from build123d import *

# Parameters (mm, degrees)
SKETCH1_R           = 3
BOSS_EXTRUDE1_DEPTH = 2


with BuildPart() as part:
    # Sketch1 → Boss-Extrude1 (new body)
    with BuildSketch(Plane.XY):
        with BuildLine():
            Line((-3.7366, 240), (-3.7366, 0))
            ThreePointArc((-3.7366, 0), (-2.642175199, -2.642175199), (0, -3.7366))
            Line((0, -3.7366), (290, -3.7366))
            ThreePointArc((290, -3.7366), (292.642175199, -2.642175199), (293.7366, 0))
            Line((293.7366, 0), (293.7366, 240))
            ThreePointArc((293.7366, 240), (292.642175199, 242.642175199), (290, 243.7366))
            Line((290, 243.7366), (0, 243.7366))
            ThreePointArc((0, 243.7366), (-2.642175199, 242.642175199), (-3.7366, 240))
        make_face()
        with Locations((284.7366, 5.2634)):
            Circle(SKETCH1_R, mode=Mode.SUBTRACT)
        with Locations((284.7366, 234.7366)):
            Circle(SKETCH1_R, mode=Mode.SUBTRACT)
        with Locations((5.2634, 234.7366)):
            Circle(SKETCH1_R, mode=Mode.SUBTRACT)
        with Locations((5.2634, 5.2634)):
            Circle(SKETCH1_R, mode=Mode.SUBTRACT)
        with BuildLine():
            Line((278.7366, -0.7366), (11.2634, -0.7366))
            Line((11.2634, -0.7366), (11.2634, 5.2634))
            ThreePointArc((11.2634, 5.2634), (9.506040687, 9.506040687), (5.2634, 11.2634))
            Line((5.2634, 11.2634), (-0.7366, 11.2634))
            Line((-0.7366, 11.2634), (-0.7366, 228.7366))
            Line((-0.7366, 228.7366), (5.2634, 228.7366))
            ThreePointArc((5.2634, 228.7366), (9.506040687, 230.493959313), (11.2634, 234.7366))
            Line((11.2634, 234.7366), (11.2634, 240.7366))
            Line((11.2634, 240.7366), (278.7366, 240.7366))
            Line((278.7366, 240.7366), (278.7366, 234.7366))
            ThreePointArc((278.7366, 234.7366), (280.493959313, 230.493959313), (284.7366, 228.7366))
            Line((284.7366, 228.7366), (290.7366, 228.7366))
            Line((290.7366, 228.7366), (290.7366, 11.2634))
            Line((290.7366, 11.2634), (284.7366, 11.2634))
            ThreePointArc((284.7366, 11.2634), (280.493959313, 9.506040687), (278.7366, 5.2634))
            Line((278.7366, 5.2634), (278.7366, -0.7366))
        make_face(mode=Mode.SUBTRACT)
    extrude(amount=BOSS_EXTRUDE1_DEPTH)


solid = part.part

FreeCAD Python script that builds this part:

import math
import FreeCAD as App
import Part
import Sketcher

V = App.Vector

doc = App.newDocument("Part")
body = doc.addObject("PartDesign::Body", "Body")

# Sketch on XY plane
sketch1 = doc.addObject("Sketcher::SketchObject", "Sketch")
body.addObject(sketch1)
sketch1.AttachmentSupport = (doc.XY_Plane, [""])
sketch1.MapMode = "FlatFace"
sketch1.addGeometry([
    Part.LineSegment(V(-3.7, 240, 0), V(-3.7, 0, 0)),  # 0
    Part.ArcOfCircle(Part.Circle(V(0, 0, 0), V(0, 0, 1), 3.7), math.radians(180), math.radians(270)),  # 1
    Part.LineSegment(V(0, -3.7, 0), V(290, -3.7, 0)),  # 2
    Part.ArcOfCircle(Part.Circle(V(290, 0, 0), V(0, 0, 1), 3.7), math.radians(-90), math.radians(0)),  # 3
    Part.LineSegment(V(293.7, 0, 0), V(293.7, 240, 0)),  # 4
    Part.ArcOfCircle(Part.Circle(V(290, 240, 0), V(0, 0, 1), 3.7), math.radians(0), math.radians(90)),  # 5
    Part.LineSegment(V(290, 243.7, 0), V(0, 243.7, 0)),  # 6
    Part.ArcOfCircle(Part.Circle(V(0, 240, 0), V(0, 0, 1), 3.7), math.radians(90), math.radians(180)),  # 7
    Part.Circle(V(5.3, 5.3, 0), V(0, 0, 1), 3),  # 8
    Part.Circle(V(284.7, 5.3, 0), V(0, 0, 1), 3),  # 9
    Part.LineSegment(V(278.7, 5.3, 0), V(278.7, -0.7, 0)),  # 10
    Part.LineSegment(V(278.7, -0.7, 0), V(11.3, -0.7, 0)),  # 11
    Part.LineSegment(V(11.3, -0.7, 0), V(11.3, 5.3, 0)),  # 12
    Part.ArcOfCircle(Part.Circle(V(5.3, 5.3, 0), V(0, 0, 1), 6), math.radians(0), math.radians(90)),  # 13
    Part.LineSegment(V(5.3, 11.3, 0), V(-0.7, 11.3, 0)),  # 14
    Part.LineSegment(V(-0.7, 11.3, 0), V(-0.7, 228.7, 0)),  # 15
    Part.LineSegment(V(-0.7, 228.7, 0), V(5.3, 228.7, 0)),  # 16
    Part.ArcOfCircle(Part.Circle(V(5.3, 234.7, 0), V(0, 0, 1), 6), math.radians(-90), math.radians(0)),  # 17
    Part.LineSegment(V(11.3, 234.7, 0), V(11.3, 240.7, 0)),  # 18
    Part.LineSegment(V(11.3, 240.7, 0), V(278.7, 240.7, 0)),  # 19
    Part.LineSegment(V(278.7, 240.7, 0), V(278.7, 234.7, 0)),  # 20
    Part.ArcOfCircle(Part.Circle(V(284.7, 234.7, 0), V(0, 0, 1), 6), math.radians(180), math.radians(270)),  # 21
    Part.LineSegment(V(284.7, 228.7, 0), V(290.7, 228.7, 0)),  # 22
    Part.LineSegment(V(290.7, 228.7, 0), V(290.7, 11.3, 0)),  # 23
    Part.LineSegment(V(290.7, 11.3, 0), V(284.7, 11.3, 0)),  # 24
    Part.ArcOfCircle(Part.Circle(V(284.7, 5.3, 0), V(0, 0, 1), 6), math.radians(90), math.radians(180)),  # 25
    Part.Circle(V(5.3, 234.7, 0), V(0, 0, 1), 3),  # 26
    Part.Circle(V(284.7, 234.7, 0), V(0, 0, 1), 3),  # 27
], False)
sketch1.addConstraint([
    Sketcher.Constraint("Tangent", 0, 2, 1, 1),
    Sketcher.Constraint("Tangent", 1, 2, 2, 1),
    Sketcher.Constraint("Tangent", 2, 2, 3, 1),
    Sketcher.Constraint("Tangent", 3, 2, 4, 1),
    Sketcher.Constraint("Tangent", 4, 2, 5, 1),
    Sketcher.Constraint("Tangent", 5, 2, 6, 1),
    Sketcher.Constraint("Tangent", 6, 2, 7, 1),
    Sketcher.Constraint("Tangent", 7, 2, 0, 1),
    Sketcher.Constraint("Coincident", 10, 2, 11, 1),
    Sketcher.Constraint("Coincident", 11, 2, 12, 1),
    Sketcher.Constraint("Tangent", 12, 2, 13, 1),
    Sketcher.Constraint("Tangent", 13, 2, 14, 1),
    Sketcher.Constraint("Coincident", 14, 2, 15, 1),
    Sketcher.Constraint("Coincident", 15, 2, 16, 1),
    Sketcher.Constraint("Tangent", 16, 2, 17, 1),
    Sketcher.Constraint("Tangent", 17, 2, 18, 1),
    Sketcher.Constraint("Coincident", 18, 2, 19, 1),
    Sketcher.Constraint("Coincident", 19, 2, 20, 1),
    Sketcher.Constraint("Tangent", 20, 2, 21, 1),
    Sketcher.Constraint("Tangent", 21, 2, 22, 1),
    Sketcher.Constraint("Coincident", 22, 2, 23, 1),
    Sketcher.Constraint("Coincident", 23, 2, 24, 1),
    Sketcher.Constraint("Tangent", 24, 2, 25, 1),
    Sketcher.Constraint("Tangent", 25, 2, 10, 1),
    Sketcher.Constraint("Vertical", 0),
    Sketcher.Constraint("Horizontal", 2),
    Sketcher.Constraint("Vertical", 4),
    Sketcher.Constraint("Horizontal", 6),
    Sketcher.Constraint("Vertical", 10),
    Sketcher.Constraint("Horizontal", 11),
    Sketcher.Constraint("Vertical", 12),
    Sketcher.Constraint("Horizontal", 14),
    Sketcher.Constraint("Vertical", 15),
    Sketcher.Constraint("Horizontal", 16),
    Sketcher.Constraint("Vertical", 18),
    Sketcher.Constraint("Horizontal", 19),
    Sketcher.Constraint("Vertical", 20),
    Sketcher.Constraint("Horizontal", 22),
    Sketcher.Constraint("Vertical", 23),
    Sketcher.Constraint("Horizontal", 24),
    Sketcher.Constraint("Coincident", 1, 3, -1, 1),
    Sketcher.Constraint("Coincident", 13, 3, 8, 3),
    Sketcher.Constraint("Coincident", 25, 3, 9, 3),
    Sketcher.Constraint("Coincident", 26, 3, 17, 3),
    Sketcher.Constraint("Coincident", 27, 3, 21, 3),
    Sketcher.Constraint("Equal", 1, 3),
    Sketcher.Constraint("Equal", 3, 5),
    Sketcher.Constraint("Equal", 5, 7),
    Sketcher.Constraint("Equal", 8, 9),
    Sketcher.Constraint("Equal", 13, 17),
    Sketcher.Constraint("Equal", 17, 21),
    Sketcher.Constraint("Equal", 21, 25),
    Sketcher.Constraint("Equal", 9, 26),
    Sketcher.Constraint("Equal", 26, 27),
    Sketcher.Constraint("Horizontal", 8, 3, 9, 3),
    Sketcher.Constraint("Horizontal", 17, 3, 21, 3),
    Sketcher.Constraint("Vertical", 13, 3, 17, 3),
    Sketcher.Constraint("Vertical", 9, 3, 21, 3),
    Sketcher.Constraint("Equal", 16, 22),
    Sketcher.Constraint("Equal", 24, 10),
    Sketcher.Constraint("Equal", 12, 18),
    Sketcher.Constraint("Diameter", 8, 6.0),
    Sketcher.Constraint("Radius", 13, 6.0),
    Sketcher.Constraint("DistanceX", 2, 1, 2, 2, 290.0),
    Sketcher.Constraint("DistanceX", 14, 2, 14, 1, 6.0),
    Sketcher.Constraint("DistanceY", 0, 2, 0, 1, 240.0),
    Sketcher.Constraint("DistanceX", 0, 2, 8, 3, 9.0),
    Sketcher.Constraint("DistanceY", 1, 2, 8, 3, 9.0),
    Sketcher.Constraint("DistanceX", 9, 3, 3, 2, 9.0),
    Sketcher.Constraint("DistanceY", 21, 3, 5, 2, 9.0),
    Sketcher.Constraint("Radius", 1, 3.7366),
])
pad1 = doc.addObject("PartDesign::Pad", "Pad")
body.addObject(pad1)
pad1.Profile = sketch1
pad1.Length = 2

doc.recompute()
